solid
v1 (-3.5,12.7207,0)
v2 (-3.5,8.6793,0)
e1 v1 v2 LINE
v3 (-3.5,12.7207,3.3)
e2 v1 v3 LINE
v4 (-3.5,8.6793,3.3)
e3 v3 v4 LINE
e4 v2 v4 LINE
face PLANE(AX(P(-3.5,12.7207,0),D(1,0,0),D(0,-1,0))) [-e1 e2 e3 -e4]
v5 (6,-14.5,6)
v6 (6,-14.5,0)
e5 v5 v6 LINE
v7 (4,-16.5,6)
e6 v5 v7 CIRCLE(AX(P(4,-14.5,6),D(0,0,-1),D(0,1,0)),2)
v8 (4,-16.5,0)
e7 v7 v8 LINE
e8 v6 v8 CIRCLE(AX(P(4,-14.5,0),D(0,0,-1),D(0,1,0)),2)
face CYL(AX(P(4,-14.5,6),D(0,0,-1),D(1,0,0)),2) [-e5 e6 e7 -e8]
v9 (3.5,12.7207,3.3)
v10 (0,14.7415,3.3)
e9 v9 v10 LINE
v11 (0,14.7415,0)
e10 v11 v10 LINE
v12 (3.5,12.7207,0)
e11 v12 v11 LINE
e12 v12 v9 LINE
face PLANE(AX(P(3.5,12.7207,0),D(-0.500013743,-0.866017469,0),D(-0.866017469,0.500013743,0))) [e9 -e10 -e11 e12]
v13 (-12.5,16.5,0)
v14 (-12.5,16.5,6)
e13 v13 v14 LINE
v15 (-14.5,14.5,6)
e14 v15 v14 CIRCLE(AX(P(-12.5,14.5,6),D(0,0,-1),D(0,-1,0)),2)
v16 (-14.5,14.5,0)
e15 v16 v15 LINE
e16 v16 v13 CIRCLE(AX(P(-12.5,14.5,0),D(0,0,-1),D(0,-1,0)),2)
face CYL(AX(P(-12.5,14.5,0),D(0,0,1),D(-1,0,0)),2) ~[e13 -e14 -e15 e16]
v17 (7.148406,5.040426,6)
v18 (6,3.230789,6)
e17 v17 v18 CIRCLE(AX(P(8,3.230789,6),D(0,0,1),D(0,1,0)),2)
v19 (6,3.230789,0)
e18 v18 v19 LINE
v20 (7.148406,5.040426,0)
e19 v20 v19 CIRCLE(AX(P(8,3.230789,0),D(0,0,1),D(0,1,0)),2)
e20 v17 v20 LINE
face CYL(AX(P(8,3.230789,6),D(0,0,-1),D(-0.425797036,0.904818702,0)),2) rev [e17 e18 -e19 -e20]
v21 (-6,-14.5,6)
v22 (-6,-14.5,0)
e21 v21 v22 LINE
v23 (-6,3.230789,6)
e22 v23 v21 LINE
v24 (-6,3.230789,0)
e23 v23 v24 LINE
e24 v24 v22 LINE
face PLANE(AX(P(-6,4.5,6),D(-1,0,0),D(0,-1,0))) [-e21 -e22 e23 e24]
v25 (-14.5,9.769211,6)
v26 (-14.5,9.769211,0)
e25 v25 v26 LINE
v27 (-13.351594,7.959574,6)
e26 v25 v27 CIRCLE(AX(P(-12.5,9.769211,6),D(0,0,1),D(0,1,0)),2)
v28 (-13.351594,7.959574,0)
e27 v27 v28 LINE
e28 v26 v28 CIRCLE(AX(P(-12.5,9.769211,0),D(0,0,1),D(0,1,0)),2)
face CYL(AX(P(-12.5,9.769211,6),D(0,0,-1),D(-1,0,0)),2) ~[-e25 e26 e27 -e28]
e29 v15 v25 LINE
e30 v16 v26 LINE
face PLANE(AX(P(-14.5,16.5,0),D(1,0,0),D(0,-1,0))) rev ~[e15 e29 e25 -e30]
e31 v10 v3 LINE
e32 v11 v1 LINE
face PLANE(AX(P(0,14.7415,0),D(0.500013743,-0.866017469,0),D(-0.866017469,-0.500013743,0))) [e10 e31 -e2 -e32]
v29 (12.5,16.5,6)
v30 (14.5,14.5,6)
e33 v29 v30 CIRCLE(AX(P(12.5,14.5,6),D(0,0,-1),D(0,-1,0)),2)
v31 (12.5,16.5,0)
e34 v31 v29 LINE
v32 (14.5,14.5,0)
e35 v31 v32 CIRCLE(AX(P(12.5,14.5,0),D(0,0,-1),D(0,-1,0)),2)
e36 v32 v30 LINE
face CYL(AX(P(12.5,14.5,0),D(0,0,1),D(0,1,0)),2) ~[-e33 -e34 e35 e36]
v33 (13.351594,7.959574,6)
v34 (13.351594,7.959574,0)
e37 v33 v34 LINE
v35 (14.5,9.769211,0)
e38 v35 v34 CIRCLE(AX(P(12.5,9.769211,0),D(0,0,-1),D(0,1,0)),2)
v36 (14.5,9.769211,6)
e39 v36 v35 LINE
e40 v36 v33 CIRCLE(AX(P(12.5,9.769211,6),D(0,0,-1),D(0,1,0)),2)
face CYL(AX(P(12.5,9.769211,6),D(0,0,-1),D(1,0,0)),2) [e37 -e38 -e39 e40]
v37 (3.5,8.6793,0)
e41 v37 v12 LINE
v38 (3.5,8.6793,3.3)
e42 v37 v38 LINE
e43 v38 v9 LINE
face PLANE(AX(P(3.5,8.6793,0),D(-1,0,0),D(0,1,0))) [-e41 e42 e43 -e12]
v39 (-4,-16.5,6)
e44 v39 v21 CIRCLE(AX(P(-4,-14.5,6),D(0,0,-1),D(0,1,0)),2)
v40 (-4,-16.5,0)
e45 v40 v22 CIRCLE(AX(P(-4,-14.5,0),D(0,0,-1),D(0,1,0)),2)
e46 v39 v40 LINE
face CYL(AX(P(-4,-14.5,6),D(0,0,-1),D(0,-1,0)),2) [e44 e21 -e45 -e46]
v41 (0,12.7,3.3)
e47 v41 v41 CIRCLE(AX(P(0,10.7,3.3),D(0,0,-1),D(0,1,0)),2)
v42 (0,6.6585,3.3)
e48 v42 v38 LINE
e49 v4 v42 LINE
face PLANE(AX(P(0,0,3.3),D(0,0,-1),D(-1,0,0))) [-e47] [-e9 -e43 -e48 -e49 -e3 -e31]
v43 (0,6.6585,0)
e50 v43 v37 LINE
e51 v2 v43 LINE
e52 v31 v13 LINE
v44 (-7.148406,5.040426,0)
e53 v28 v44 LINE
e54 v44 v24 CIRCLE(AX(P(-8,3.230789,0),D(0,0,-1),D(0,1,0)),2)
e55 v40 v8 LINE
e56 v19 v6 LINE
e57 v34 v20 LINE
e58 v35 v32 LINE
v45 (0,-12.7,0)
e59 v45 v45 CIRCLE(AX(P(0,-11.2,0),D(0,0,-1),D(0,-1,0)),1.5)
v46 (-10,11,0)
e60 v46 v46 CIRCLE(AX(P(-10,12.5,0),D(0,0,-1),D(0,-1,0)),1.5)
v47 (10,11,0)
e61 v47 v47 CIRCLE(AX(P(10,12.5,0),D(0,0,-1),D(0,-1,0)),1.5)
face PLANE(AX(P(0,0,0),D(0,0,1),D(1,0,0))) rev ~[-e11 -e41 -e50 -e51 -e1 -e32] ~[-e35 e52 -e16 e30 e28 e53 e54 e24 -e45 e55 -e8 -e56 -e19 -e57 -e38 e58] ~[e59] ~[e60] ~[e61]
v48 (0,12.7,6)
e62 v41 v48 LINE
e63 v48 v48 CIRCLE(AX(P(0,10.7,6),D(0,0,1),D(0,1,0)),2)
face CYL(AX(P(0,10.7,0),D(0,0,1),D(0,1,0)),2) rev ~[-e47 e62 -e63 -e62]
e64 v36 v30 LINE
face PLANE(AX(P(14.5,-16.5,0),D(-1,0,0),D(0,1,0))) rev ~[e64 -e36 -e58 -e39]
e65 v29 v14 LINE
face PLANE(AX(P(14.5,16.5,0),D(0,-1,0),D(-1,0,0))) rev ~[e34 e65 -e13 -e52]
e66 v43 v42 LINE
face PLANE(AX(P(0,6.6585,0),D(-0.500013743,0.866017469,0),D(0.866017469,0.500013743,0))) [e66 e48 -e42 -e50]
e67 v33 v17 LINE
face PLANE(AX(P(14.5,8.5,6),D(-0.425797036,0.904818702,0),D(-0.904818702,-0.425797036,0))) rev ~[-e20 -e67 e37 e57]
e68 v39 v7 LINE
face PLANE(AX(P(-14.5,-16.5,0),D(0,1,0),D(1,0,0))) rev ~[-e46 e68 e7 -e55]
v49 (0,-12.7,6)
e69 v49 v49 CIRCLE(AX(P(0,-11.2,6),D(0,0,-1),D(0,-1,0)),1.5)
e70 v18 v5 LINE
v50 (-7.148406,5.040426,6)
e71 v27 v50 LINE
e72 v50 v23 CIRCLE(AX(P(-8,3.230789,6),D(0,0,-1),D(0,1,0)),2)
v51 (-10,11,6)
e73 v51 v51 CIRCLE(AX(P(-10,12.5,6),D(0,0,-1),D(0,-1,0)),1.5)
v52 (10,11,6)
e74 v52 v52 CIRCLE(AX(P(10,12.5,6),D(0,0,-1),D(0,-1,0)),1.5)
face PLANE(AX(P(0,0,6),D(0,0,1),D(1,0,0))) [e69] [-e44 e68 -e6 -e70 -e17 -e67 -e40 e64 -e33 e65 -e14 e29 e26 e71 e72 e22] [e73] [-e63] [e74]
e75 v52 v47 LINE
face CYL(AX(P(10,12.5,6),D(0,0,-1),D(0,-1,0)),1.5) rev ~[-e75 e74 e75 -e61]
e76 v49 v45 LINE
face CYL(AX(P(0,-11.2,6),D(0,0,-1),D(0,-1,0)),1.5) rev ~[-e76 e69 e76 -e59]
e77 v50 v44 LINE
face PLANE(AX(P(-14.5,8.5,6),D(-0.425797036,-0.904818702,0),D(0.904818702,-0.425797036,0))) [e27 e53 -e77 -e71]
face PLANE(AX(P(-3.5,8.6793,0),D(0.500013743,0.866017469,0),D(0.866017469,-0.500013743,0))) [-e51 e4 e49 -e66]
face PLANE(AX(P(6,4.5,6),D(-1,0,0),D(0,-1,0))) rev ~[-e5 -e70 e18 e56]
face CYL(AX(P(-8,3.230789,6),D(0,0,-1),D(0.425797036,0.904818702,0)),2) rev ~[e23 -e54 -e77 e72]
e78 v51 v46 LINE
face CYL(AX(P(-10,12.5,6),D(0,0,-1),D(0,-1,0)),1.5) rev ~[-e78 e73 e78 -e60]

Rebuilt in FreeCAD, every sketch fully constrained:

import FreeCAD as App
import Part
import Sketcher

V = App.Vector
Q = App.Units.Quantity


def edges_at(feature, points):
    """Names of the edges that pass closest to the given points."""
    edges = feature.Shape.Edges
    near = lambda p: min(range(len(edges)), key=lambda i: edges[i].distToShape(Part.Vertex(*p))[0])
    return sorted({f"Edge{near(p) + 1}" for p in points})


def add_polygon(sketch, points):
    """Adds a closed chain of lines whose ends are joined by coincident constraints."""
    first, n = sketch.GeometryCount, len(points)
    for a, b in zip(points, points[1:] + points[:1]):
        sketch.addGeometry(Part.LineSegment(App.Vector(*a, 0), App.Vector(*b, 0)), False)
    for i in range(n):
        sketch.addConstraint(Sketcher.Constraint("Coincident", first + i, 2, first + (i + 1) % n, 1))

doc = App.newDocument("Part")
body = doc.addObject("PartDesign::Body", "Body")

sketch1 = doc.addObject("Sketcher::SketchObject", "Sketch")
body.addObject(sketch1)
sketch1.AttachmentSupport = (doc.XY_Plane, [""])
sketch1.MapMode = "FlatFace"
add_polygon(sketch1, [(-14.5, 16.5), (-14.5, -16.5), (14.5, -16.5), (14.5, 16.5)])
sketch1.addConstraint([
    Sketcher.Constraint("Vertical", 0),
    Sketcher.Constraint("Horizontal", 1),
    Sketcher.Constraint("Vertical", 2),
    Sketcher.Constraint("Horizontal", 3),
    Sketcher.Constraint("Symmetric", 0, 2, 2, 2, -1, 1),
    Sketcher.Constraint("DistanceX", 1, 1, 1, 2, 29.0),
    Sketcher.Constraint("DistanceY", 0, 2, 0, 1, 33.0),
])
pad1 = doc.addObject("PartDesign::Pad", "Pad")
body.addObject(pad1)
pad1.Profile = sketch1
pad1.Length = 6

sketch2 = doc.addObject("Sketcher::SketchObject", "Sketch001")
body.addObject(sketch2)
sketch2.AttachmentSupport = (doc.XY_Plane, [""])
sketch2.MapMode = "FlatFace"
sketch2.AttachmentOffset = App.Placement(V(0, 0, 6), App.Rotation())
sketch2.addGeometry(Part.Circle(V(-10, 12.5, 0), V(0, 0, 1), 1.5), False)
sketch2.addConstraint([
    Sketcher.Constraint("Diameter", 0, 3.0),
    Sketcher.Constraint("DistanceX", 0, 3, -1, 1, 10.0),
    Sketcher.Constraint("DistanceY", -1, 1, 0, 3, 12.5),
])
doc.recompute()
hole = doc.addObject("PartDesign::Hole", "Hole")
body.addObject(hole)
hole.Profile = sketch2
hole.ThreadType = "None"
hole.Diameter = 3
hole.DepthType = "ThroughAll"
doc.recompute()

linearpattern = doc.addObject("PartDesign::LinearPattern", "LinearPattern")
body.addObject(linearpattern)
linearpattern.Originals = [hole]
linearpattern.Direction = (doc.X_Axis, [""])
linearpattern.Mode = "offset"
linearpattern.Offset = 20
linearpattern.Occurrences = 2
body.Tip = linearpattern

sketch3 = doc.addObject("Sketcher::SketchObject", "Sketch002")
body.addObject(sketch3)
sketch3.AttachmentSupport = (doc.XY_Plane, [""])
sketch3.MapMode = "FlatFace"
sketch3.AttachmentOffset = App.Placement(V(0, 0, 6), App.Rotation())
sketch3.addGeometry([
    Part.Circle(V(0, -11.2, 0), V(0, 0, 1), 1.5),
    Part.Circle(V(-10, 12.5, 0), V(0, 0, 1), 1.5),
], False)
sketch3.addConstraint([
    Sketcher.Constraint("Equal", 0, 1),
    Sketcher.Constraint("PointOnObject", 0, 3, -2),
    Sketcher.Constraint("Diameter", 0, 3.0),
    Sketcher.Constraint("DistanceX", 1, 3, -1, 1, 10.0),
    Sketcher.Constraint("DistanceY", 0, 3, -1, 1, 11.2),
    Sketcher.Constraint("DistanceY", -1, 1, 1, 3, 12.5),
])
doc.recompute()
hole2 = doc.addObject("PartDesign::Hole", "Hole001")
body.addObject(hole2)
hole2.Profile = sketch3
hole2.ThreadType = "None"
hole2.Diameter = 3
hole2.DepthType = "ThroughAll"

sketch4 = doc.addObject("Sketcher::SketchObject", "Sketch003")
body.addObject(sketch4)
sketch4.AttachmentSupport = (doc.XY_Plane, [""])
sketch4.MapMode = "FlatFace"
sketch4.addGeometry(Part.Circle(V(0, 10.7, 0), V(0, 0, 1), 2), False)
sketch4.addConstraint([
    Sketcher.Constraint("PointOnObject", 0, 3, -2),
    Sketcher.Constraint("Diameter", 0, 4.0),
    Sketcher.Constraint("DistanceY", -1, 1, 0, 3, 10.7),
])
doc.recompute()
hole3 = doc.addObject("PartDesign::Hole", "Hole002")
body.addObject(hole3)
hole3.Profile = sketch4
hole3.ThreadType = "None"
hole3.Diameter = 4
hole3.DepthType = "ThroughAll"
hole3.Reversed = True

sketch5 = doc.addObject("Sketcher::SketchObject", "Sketch004")
body.addObject(sketch5)
sketch5.AttachmentSupport = (doc.XY_Plane, [""])
sketch5.MapMode = "FlatFace"
add_polygon(sketch5, [(3.5, 8.6793), (0, 6.6585), (-3.5, 8.6793), (-3.5, 12.7207), (0, 14.7415), (3.5, 12.7207)])
sketch5.addGeometry(Part.Circle(V(0, 10.7, 0), V(0, 0, 1), 2), False)
sketch5.addConstraint([
    Sketcher.Constraint("Vertical", 2),
    Sketcher.Constraint("Vertical", 5),
    Sketcher.Constraint("Symmetric", 2, 2, 4, 2, -2),
    Sketcher.Constraint("PointOnObject", 6, 3, -2),
    Sketcher.Constraint("PointOnObject", 0, 2, -2),
    Sketcher.Constraint("PointOnObject", 3, 2, -2),
    Sketcher.Constraint("Parallel", 0, 3),
    Sketcher.Constraint("Parallel", 1, 4),
    Sketcher.Constraint("Diameter", 6, 4.0),
    Sketcher.Constraint("DistanceX", 2, 2, 4, 2, 7.0),
    Sketcher.Constraint("Angle", 0, Q("-149.999 deg")),
    Sketcher.Constraint("DistanceY", -1, 1, 6, 3, 10.7),
    Sketcher.Constraint("DistanceY", 2, 1, 2, 2, 4.0414),
    Sketcher.Constraint("DistanceY", -1, 1, 0, 2, 6.6585),
])
pocket1 = doc.addObject("PartDesign::Pocket", "Pocket")
body.addObject(pocket1)
pocket1.Profile = sketch5
pocket1.Length = 3.3
pocket1.Reversed = True

sketch6 = doc.addObject("Sketcher::SketchObject", "Sketch005")
body.addObject(sketch6)
sketch6.AttachmentSupport = (doc.XY_Plane, [""])
sketch6.MapMode = "FlatFace"
sketch6.AttachmentOffset = App.Placement(V(0, 0, 6), App.Rotation())
add_polygon(sketch6, [(-14.5, 8.5), (-14.5, -16.5), (-6, -16.5), (-6, 4.5)])
add_polygon(sketch6, [(6, 4.5), (6, -16.5), (14.5, -16.5), (14.5, 8.5)])
sketch6.addConstraint([
    Sketcher.Constraint("Vertical", 0),
    Sketcher.Constraint("Horizontal", 1),
    Sketcher.Constraint("Vertical", 2),
    Sketcher.Constraint("Vertical", 4),
    Sketcher.Constraint("Horizontal", 5),
    Sketcher.Constraint("Vertical", 6),
    Sketcher.Constraint("Symmetric", 1, 2, 4, 2, -2),
    Sketcher.Constraint("Symmetric", 3, 2, 6, 2, -2),
    Sketcher.Constraint("Horizontal", 2, 2, 7, 2),
    Sketcher.Constraint("DistanceX", 1, 2, -1, 1, 6.0),
    Sketcher.Constraint("DistanceY", 0, 2, 0, 1, 25.0),
    Sketcher.Constraint("DistanceY", 2, 1, 2, 2, 21.0),
    Sketcher.Constraint("DistanceX", 1, 1, 1, 2, 8.5),
    Sketcher.Constraint("DistanceY", 0, 2, -1, 1, 16.5),
])
pocket2 = doc.addObject("PartDesign::Pocket", "Pocket001")
body.addObject(pocket2)
pocket2.Profile = sketch6
pocket2.Length = 6
doc.recompute()

fillet = doc.addObject("PartDesign::Fillet", "Fillet")
body.addObject(fillet)
fillet.Base = (pocket2, edges_at(pocket2, [
    (6, 4.5, 3),
    (6, -16.5, 3),
    (-6, -16.5, 3),
    (-6, 4.5, 3),
    (-14.5, 8.5, 3),
    (-14.5, 16.5, 3),
    (14.5, 16.5, 3),
    (14.5, 8.5, 3),
]))
fillet.Radius = 2

doc.recompute()
